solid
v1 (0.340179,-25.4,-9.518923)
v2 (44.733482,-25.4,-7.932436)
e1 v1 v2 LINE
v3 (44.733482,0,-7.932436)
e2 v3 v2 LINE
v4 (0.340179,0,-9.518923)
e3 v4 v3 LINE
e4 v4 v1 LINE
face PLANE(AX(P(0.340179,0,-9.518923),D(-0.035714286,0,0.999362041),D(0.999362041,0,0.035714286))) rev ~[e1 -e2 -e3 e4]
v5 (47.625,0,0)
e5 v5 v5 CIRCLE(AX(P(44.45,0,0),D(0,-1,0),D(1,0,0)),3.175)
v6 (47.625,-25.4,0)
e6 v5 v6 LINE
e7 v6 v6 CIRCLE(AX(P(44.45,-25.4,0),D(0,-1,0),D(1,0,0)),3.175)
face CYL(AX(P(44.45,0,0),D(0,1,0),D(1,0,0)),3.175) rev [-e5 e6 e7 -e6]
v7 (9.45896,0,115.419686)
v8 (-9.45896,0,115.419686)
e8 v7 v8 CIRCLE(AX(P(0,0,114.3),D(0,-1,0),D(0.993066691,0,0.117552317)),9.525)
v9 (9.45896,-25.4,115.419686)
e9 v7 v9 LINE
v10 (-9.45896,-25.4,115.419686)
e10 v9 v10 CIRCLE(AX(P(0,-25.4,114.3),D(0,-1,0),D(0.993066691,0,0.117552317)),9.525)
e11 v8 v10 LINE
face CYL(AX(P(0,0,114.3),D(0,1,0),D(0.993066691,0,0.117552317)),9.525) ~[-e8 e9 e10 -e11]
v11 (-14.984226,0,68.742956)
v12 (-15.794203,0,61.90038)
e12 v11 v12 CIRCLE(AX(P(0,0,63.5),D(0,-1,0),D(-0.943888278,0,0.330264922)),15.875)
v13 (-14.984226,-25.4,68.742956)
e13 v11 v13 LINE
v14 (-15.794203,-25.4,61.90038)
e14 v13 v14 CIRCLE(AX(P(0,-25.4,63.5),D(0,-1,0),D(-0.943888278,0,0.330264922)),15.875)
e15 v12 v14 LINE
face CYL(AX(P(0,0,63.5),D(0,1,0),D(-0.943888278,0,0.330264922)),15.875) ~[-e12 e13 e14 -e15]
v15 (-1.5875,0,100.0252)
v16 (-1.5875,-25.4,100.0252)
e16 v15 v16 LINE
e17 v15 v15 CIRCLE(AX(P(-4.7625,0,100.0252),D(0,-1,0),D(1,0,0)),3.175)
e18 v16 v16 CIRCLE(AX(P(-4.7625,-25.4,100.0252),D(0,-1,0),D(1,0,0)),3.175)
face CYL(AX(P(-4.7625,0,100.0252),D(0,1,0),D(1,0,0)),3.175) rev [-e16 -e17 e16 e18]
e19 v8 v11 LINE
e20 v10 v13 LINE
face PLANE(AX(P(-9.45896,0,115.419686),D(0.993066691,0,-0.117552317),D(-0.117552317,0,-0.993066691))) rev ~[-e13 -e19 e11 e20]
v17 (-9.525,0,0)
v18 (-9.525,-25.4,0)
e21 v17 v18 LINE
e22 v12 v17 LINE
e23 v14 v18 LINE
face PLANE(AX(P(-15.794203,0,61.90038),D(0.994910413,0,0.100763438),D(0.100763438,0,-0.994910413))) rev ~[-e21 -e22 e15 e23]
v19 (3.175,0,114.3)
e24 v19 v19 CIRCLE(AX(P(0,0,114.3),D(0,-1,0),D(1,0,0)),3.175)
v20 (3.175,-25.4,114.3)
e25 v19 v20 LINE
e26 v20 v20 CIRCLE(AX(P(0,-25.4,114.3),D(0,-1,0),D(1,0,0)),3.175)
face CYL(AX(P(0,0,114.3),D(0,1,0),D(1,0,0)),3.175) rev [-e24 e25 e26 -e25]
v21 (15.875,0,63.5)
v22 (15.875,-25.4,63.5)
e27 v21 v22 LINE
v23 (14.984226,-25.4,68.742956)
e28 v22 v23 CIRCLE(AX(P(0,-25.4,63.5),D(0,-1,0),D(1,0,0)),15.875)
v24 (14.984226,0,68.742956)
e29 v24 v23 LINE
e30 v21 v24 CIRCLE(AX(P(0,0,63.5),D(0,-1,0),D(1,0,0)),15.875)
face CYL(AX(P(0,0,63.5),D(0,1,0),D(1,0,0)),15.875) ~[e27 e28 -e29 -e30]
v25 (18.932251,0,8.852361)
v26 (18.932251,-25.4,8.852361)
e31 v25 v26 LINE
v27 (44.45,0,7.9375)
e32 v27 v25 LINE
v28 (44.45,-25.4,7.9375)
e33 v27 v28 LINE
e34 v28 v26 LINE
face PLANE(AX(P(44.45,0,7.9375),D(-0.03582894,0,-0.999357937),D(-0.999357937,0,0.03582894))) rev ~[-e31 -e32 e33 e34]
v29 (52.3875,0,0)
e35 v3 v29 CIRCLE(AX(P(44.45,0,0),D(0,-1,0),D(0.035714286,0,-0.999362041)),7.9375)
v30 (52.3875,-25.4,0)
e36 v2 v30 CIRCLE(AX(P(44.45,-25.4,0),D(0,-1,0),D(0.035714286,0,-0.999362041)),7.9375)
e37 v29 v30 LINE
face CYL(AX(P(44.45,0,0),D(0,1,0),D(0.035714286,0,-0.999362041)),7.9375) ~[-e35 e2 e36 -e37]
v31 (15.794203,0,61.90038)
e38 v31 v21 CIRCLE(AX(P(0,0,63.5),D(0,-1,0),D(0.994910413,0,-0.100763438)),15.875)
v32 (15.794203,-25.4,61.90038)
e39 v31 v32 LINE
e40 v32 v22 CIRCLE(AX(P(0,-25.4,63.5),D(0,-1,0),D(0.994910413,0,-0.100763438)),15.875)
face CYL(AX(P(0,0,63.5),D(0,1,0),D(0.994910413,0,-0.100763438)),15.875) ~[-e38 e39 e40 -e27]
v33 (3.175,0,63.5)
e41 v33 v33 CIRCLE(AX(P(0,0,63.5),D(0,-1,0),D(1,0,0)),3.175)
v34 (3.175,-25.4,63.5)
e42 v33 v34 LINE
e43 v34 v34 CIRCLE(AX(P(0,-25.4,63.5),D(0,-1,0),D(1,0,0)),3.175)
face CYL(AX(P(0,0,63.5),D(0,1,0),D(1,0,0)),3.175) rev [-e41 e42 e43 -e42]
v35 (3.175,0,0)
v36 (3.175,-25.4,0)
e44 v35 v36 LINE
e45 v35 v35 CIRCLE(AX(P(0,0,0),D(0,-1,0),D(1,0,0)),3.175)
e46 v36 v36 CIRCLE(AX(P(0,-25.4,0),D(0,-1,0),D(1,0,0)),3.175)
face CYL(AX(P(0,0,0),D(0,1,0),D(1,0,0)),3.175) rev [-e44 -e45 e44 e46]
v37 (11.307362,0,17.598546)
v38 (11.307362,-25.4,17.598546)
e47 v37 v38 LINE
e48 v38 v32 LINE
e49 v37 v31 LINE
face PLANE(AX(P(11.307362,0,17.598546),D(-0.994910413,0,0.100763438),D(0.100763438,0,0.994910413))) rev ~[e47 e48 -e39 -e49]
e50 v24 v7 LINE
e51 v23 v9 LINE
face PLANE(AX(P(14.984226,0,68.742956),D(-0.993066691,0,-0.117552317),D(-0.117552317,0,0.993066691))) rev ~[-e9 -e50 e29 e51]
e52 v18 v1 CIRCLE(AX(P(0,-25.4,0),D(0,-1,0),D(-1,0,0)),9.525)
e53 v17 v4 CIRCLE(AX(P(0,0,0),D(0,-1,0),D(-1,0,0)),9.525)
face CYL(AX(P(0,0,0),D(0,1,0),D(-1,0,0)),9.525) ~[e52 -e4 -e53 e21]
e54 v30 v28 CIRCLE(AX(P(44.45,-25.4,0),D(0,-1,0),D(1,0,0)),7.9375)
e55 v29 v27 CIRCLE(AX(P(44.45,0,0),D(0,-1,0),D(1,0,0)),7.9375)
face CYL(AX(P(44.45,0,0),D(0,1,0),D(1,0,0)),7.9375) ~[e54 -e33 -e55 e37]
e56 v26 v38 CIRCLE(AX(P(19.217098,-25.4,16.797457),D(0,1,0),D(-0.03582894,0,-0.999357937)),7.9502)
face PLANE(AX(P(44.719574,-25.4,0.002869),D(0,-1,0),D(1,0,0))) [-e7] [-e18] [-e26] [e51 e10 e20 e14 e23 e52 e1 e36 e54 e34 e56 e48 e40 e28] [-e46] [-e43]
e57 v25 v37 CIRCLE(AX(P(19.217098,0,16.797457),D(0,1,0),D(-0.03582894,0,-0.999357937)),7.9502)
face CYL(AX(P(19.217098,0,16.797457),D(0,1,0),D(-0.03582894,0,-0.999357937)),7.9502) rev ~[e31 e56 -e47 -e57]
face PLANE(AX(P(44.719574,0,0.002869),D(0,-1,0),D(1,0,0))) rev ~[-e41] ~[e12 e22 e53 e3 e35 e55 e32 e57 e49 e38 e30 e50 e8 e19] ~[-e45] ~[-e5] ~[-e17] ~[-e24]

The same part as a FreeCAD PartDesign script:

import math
import FreeCAD as App
import Part
import Sketcher
Q = App.Units.Quantity

doc = App.newDocument("Part")
body = doc.addObject("PartDesign::Body", "Body")

sketch1 = doc.addObject("Sketcher::SketchObject", "Sketch")
body.addObject(sketch1)
sketch1.AttachmentSupport = (doc.XZ_Plane, [""])
sketch1.MapMode = "FlatFace"
sketch1.addGeometry(Part.ArcOfCircle(Part.Circle(App.Vector(44.45, 0, 0), App.Vector(0, 0, 1), 7.9375), math.radians(-87.953287), math.radians(0)), False)
sketch1.addGeometry(Part.ArcOfCircle(Part.Circle(App.Vector(44.45, 0, 0), App.Vector(0, 0, 1), 7.9375), math.radians(0), math.radians(90)), False)
sketch1.addGeometry(Part.LineSegment(App.Vector(44.45, 7.9375, 0), App.Vector(18.932251, 8.852361, 0)), False)
sketch1.addGeometry(Part.ArcOfCircle(Part.Circle(App.Vector(19.217098, 16.797457, 0), App.Vector(0, 0, 1), 7.9502), math.radians(174.216866), math.radians(267.946714)), False)
sketch1.addGeometry(Part.LineSegment(App.Vector(11.307362, 17.598546, 0), App.Vector(15.794203, 61.90038, 0)), False)
sketch1.addGeometry(Part.ArcOfCircle(Part.Circle(App.Vector(0, 63.5, 0), App.Vector(0, 0, 1), 15.875), math.radians(-5.783134), math.radians(0)), False)
sketch1.addGeometry(Part.ArcOfCircle(Part.Circle(App.Vector(0, 63.5, 0), App.Vector(0, 0, 1), 15.875), math.radians(0), math.radians(19.284856)), False)
sketch1.addGeometry(Part.LineSegment(App.Vector(14.984226, 68.742956, 0), App.Vector(9.45896, 115.419686, 0)), False)
sketch1.addGeometry(Part.ArcOfCircle(Part.Circle(App.Vector(0, 114.3, 0), App.Vector(0, 0, 1), 9.525), math.radians(6.750861), math.radians(173.249139)), False)
sketch1.addGeometry(Part.LineSegment(App.Vector(-9.45896, 115.419686, 0), App.Vector(-14.984226, 68.742956, 0)), False)
sketch1.addGeometry(Part.ArcOfCircle(Part.Circle(App.Vector(0, 63.5, 0), App.Vector(0, 0, 1), 15.875), math.radians(160.715144), math.radians(185.783134)), False)
sketch1.addGeometry(Part.LineSegment(App.Vector(-15.794203, 61.90038, 0), App.Vector(-9.525, 0, 0)), False)
sketch1.addGeometry(Part.ArcOfCircle(Part.Circle(App.Vector(0, 0, 0), App.Vector(0, 0, 1), 9.525), math.radians(180), math.radians(272.046713)), False)
sketch1.addGeometry(Part.LineSegment(App.Vector(0.340179, -9.518923, 0), App.Vector(44.733482, -7.932436, 0)), False)
sketch1.addGeometry(Part.Circle(App.Vector(0, 0, 0), App.Vector(0, 0, 1), 3.175), False)
sketch1.addGeometry(Part.Circle(App.Vector(44.45, 0, 0), App.Vector(0, 0, 1), 3.175), False)
sketch1.addGeometry(Part.Circle(App.Vector(0, 63.5, 0), App.Vector(0, 0, 1), 3.175), False)
sketch1.addGeometry(Part.Circle(App.Vector(-4.7625, 100.0252, 0), App.Vector(0, 0, 1), 3.175), False)
sketch1.addGeometry(Part.Circle(App.Vector(0, 114.3, 0), App.Vector(0, 0, 1), 3.175), False)
sketch1.addConstraint(Sketcher.Constraint("Coincident", 0, 2, 1, 1))
sketch1.addConstraint(Sketcher.Constraint("Coincident", 1, 2, 2, 1))
sketch1.addConstraint(Sketcher.Constraint("Coincident", 2, 2, 3, 2))
sketch1.addConstraint(Sketcher.Constraint("Coincident", 3, 1, 4, 1))
sketch1.addConstraint(Sketcher.Constraint("Coincident", 4, 2, 5, 1))
sketch1.addConstraint(Sketcher.Constraint("Coincident", 5, 2, 6, 1))
sketch1.addConstraint(Sketcher.Constraint("Coincident", 6, 2, 7, 1))
sketch1.addConstraint(Sketcher.Constraint("Coincident", 7, 2, 8, 1))
sketch1.addConstraint(Sketcher.Constraint("Coincident", 8, 2, 9, 1))
sketch1.addConstraint(Sketcher.Constraint("Coincident", 9, 2, 10, 1))
sketch1.addConstraint(Sketcher.Constraint("Coincident", 10, 2, 11, 1))
sketch1.addConstraint(Sketcher.Constraint("Coincident", 11, 2, 12, 1))
sketch1.addConstraint(Sketcher.Constraint("Coincident", 12, 2, 13, 1))
sketch1.addConstraint(Sketcher.Constraint("Coincident", 13, 2, 0, 1))
sketch1.addConstraint(Sketcher.Constraint("Coincident", 12, 3, -1, 1))
sketch1.addConstraint(Sketcher.Constraint("Coincident", 14, 3, -1, 1))
sketch1.addConstraint(Sketcher.Constraint("Coincident", 1, 3, 0, 3))
sketch1.addConstraint(Sketcher.Constraint("Coincident", 6, 3, 5, 3))
sketch1.addConstraint(Sketcher.Constraint("Coincident", 10, 3, 5, 3))
sketch1.addConstraint(Sketcher.Constraint("Coincident", 15, 3, 0, 3))
sketch1.addConstraint(Sketcher.Constraint("Coincident", 16, 3, 5, 3))
sketch1.addConstraint(Sketcher.Constraint("Coincident", 18, 3, 8, 3))
sketch1.addConstraint(Sketcher.Constraint("PointOnObject", 0, 3, -1))
sketch1.addConstraint(Sketcher.Constraint("PointOnObject", 5, 3, -2))
sketch1.addConstraint(Sketcher.Constraint("PointOnObject", 8, 3, -2))
sketch1.addConstraint(Sketcher.Constraint("PointOnObject", 0, 2, -1))
sketch1.addConstraint(Sketcher.Constraint("PointOnObject", 11, 2, -1))
sketch1.addConstraint(Sketcher.Constraint("Diameter", 14, Q("0.25 in")))
sketch1.addConstraint(Sketcher.Constraint("Diameter", 15, Q("0.25 in")))
sketch1.addConstraint(Sketcher.Constraint("Diameter", 16, Q("0.25 in")))
sketch1.addConstraint(Sketcher.Constraint("Diameter", 17, Q("0.25 in")))
sketch1.addConstraint(Sketcher.Constraint("Diameter", 18, Q("0.25 in")))
sketch1.addConstraint(Sketcher.Constraint("Radius", 0, Q("0.3125 in")))
sketch1.addConstraint(Sketcher.Constraint("Radius", 3, Q("0.313 in")))
sketch1.addConstraint(Sketcher.Constraint("Radius", 5, Q("0.625 in")))
sketch1.addConstraint(Sketcher.Constraint("Radius", 8, Q("0.375 in")))
sketch1.addConstraint(Sketcher.Constraint("Radius", 10, Q("0.625 in")))
sketch1.addConstraint(Sketcher.Constraint("Radius", 12, Q("0.375 in")))
sketch1.addConstraint(Sketcher.Constraint("DistanceY", 6, 3, 8, 3, Q("2 in")))
sketch1.addConstraint(Sketcher.Constraint("DistanceY", -1, 1, 5, 3, Q("2.5 in")))
sketch1.addConstraint(Sketcher.Constraint("DistanceY", -1, 1, 5, 2, Q("2.5 in")))
sketch1.addConstraint(Sketcher.Constraint("DistanceX", -1, 1, 0, 3, Q("1.75 in")))
sketch1.addConstraint(Sketcher.Constraint("DistanceX", -1, 1, 1, 2, Q("1.75 in")))
sketch1.addConstraint(Sketcher.Constraint("DistanceX", 17, 3, -1, 1, Q("0.1875 in")))
sketch1.addConstraint(Sketcher.Constraint("DistanceY", -1, 1, 17, 3, Q("3.938 in")))
sketch1.addConstraint(Sketcher.Constraint("DistanceX", -1, 1, 7, 2, Q("0.3724 in")))
sketch1.addConstraint(Sketcher.Constraint("DistanceX", 8, 2, -1, 1, Q("0.3724 in")))
sketch1.addConstraint(Sketcher.Constraint("DistanceX", -1, 1, 3, 3, 19.217098))
sketch1.addConstraint(Sketcher.Constraint("Distance", 11, 62.217039))
sketch1.addConstraint(Sketcher.Constraint("DistanceX", -1, 1, 2, 2, 18.932251))
sketch1.addConstraint(Sketcher.Constraint("DistanceY", -1, 1, 2, 2, 8.852361))
sketch1.addConstraint(Sketcher.Constraint("DistanceX", -1, 1, 3, 1, 11.307362))
sketch1.addConstraint(Sketcher.Constraint("DistanceY", -1, 1, 4, 2, 61.90038))
sketch1.addConstraint(Sketcher.Constraint("DistanceX", -1, 1, 12, 2, 0.340179))
sketch1.addConstraint(Sketcher.Constraint("DistanceY", 6, 2, 7, 2, 46.67673))
sketch1.addConstraint(Sketcher.Constraint("Distance", 9, 47.002614))
sketch1.addConstraint(Sketcher.Constraint("Distance", 13, 44.421643))
pad1 = doc.addObject("PartDesign::Pad", "Pad")
body.addObject(pad1)
pad1.Profile = sketch1
pad1.Length = Q("1 in")

doc.recompute()
